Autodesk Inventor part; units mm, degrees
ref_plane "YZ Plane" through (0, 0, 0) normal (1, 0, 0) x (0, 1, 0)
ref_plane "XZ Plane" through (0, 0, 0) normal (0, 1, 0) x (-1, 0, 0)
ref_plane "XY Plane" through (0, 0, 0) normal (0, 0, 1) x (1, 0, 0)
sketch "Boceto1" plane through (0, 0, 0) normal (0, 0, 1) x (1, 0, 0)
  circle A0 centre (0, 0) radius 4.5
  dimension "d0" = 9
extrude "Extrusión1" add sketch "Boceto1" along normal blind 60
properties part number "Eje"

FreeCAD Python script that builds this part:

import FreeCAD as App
import Part
import Sketcher
from FreeCAD import Vector
Q = App.Units.Quantity

doc = App.newDocument("Part")
body = doc.addObject("PartDesign::Body", "Body")

# Sketch on XY plane
sketch1 = body.newObject("Sketcher::SketchObject", "Sketch")
sketch1.AttachmentSupport = (doc.getObject("XY_Plane"), [""])
sketch1.MapMode = "FlatFace"
sketch1.addGeometry(Part.Circle(Vector(0, 0, 0), Vector(0, 0, 1), 4.5), False)
sketch1.addConstraint(Sketcher.Constraint("Coincident", 0, 3, -1, 1))
sketch1.addConstraint(Sketcher.Constraint("Diameter", 0, Q("9 mm")))
pad1 = body.newObject("PartDesign::Pad", "Pad")
pad1.Profile = sketch1
pad1.Length = 60

doc.recompute()
